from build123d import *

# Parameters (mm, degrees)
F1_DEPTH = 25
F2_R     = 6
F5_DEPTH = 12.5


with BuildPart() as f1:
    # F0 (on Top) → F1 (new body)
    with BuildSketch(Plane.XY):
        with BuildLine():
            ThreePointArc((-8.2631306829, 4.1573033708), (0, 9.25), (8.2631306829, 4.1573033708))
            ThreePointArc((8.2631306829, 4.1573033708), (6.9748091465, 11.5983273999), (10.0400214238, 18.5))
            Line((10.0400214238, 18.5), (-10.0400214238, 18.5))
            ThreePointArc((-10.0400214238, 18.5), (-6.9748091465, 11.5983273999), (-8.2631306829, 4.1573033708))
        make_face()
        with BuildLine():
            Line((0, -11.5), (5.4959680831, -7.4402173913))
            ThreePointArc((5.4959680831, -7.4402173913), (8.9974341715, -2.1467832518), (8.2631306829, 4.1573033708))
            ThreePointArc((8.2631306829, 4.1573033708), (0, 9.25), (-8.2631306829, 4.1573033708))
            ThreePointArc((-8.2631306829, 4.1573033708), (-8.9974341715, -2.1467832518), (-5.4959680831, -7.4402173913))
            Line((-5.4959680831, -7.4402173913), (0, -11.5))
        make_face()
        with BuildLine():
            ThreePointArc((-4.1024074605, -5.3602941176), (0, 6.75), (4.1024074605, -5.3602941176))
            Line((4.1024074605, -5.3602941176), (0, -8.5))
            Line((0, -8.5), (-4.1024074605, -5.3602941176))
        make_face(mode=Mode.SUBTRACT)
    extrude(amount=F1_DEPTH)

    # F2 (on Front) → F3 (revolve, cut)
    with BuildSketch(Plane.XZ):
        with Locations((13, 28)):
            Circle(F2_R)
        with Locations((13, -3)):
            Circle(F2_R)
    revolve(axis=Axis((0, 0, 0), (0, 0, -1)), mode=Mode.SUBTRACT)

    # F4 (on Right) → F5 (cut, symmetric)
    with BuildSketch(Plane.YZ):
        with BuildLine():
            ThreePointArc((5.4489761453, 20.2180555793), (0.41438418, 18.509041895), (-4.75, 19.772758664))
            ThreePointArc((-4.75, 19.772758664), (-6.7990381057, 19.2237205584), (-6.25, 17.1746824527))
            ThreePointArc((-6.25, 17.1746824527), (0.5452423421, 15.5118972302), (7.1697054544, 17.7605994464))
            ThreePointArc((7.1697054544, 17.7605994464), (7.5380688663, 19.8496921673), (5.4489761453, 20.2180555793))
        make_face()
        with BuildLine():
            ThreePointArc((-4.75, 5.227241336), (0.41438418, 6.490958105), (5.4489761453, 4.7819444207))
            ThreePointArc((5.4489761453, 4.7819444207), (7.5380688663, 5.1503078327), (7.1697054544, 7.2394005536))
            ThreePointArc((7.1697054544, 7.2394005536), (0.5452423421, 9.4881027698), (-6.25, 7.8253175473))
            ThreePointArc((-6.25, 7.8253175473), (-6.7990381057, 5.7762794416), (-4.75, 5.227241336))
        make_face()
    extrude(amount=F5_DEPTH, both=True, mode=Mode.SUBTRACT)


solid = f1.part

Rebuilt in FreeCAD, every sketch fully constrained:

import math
import FreeCAD as App
import Part
import Sketcher

doc = App.newDocument("Part")
params = doc.addObject("Spreadsheet::Sheet", "Params")
for row, (alias, value) in enumerate([
    ("sketch1_radius", "13 mm"),
    ("sketch1_radius2", "9.25 mm"),
    ("sketch1_radius3", "6.75 mm"),
    ("pad1_length", "25 mm"),
    ("sketch2_diameter", "12 mm"),
    ("groove_angle", "360 deg"),
    ("sketch3_radius", "9.5 mm"),
    ("sketch3_radius2", "1.5 mm"),
    ("pocket1_length", "25 mm"),
], start=1):
    params.set(f"A{row}", alias)
    params.set(f"B{row}", "=" + value)
    params.setAlias(f"B{row}", alias)

body = doc.addObject("PartDesign::Body", "Body")

# Sketch on XY plane
sketch1 = doc.addObject("Sketcher::SketchObject", "Sketch")
body.addObject(sketch1)
sketch1.AttachmentSupport = (doc.XY_Plane, [""])
sketch1.MapMode = "FlatFace"
sketch1.addGeometry([
    Part.ArcOfCircle(Part.Circle(App.Vector(19.876179, 10, 0), App.Vector(0, 0, 1), 13), math.radians(139.167783), math.radians(206.707645)),  # 0
    Part.LineSegment(App.Vector(10.040021, 18.5, 0), App.Vector(-10.040021, 18.5, 0)),  # 1
    Part.ArcOfCircle(Part.Circle(App.Vector(-19.876179, 10, 0), App.Vector(0, 0, 1), 13), math.radians(-26.707645), math.radians(40.832217)),  # 2
    Part.ArcOfCircle(Part.Circle(App.Vector(0, 0, 0), App.Vector(0, 0, 1), 9.25), math.radians(153.292355), math.radians(233.547318)),  # 3
    Part.LineSegment(App.Vector(-5.495968, -7.440217, 0), App.Vector(0, -11.5, 0)),  # 4
    Part.LineSegment(App.Vector(0, -11.5, 0), App.Vector(5.495968, -7.440217, 0)),  # 5
    Part.ArcOfCircle(Part.Circle(App.Vector(0, 0, 0), App.Vector(0, 0, 1), 9.25), math.radians(-53.547318), math.radians(26.707645)),  # 6
    Part.LineSegment(App.Vector(0, -8.5, 0), App.Vector(-4.102407, -5.360294, 0)),  # 7
    Part.ArcOfCircle(Part.Circle(App.Vector(0, 0, 0), App.Vector(0, 0, 1), 6.75), math.radians(-52.571994), math.radians(232.571994)),  # 8
    Part.LineSegment(App.Vector(4.102407, -5.360294, 0), App.Vector(0, -8.5, 0)),  # 9
], False)
sketch1.addConstraint([
    Sketcher.Constraint("Coincident", 0, 1, 1, 1),
    Sketcher.Constraint("Coincident", 1, 2, 2, 2),
    Sketcher.Constraint("Tangent", 2, 1, 3, 1),
    Sketcher.Constraint("Tangent", 3, 2, 4, 1),
    Sketcher.Constraint("Coincident", 4, 2, 5, 1),
    Sketcher.Constraint("Tangent", 5, 2, 6, 1),
    Sketcher.Constraint("Tangent", 6, 2, 0, 2),
    Sketcher.Constraint("Tangent", 7, 2, 8, 2),
    Sketcher.Constraint("Tangent", 8, 1, 9, 1),
    Sketcher.Constraint("Coincident", 9, 2, 7, 1),
    Sketcher.Constraint("Horizontal", 1),
    Sketcher.Constraint("Coincident", 3, 3, -1, 1),
    Sketcher.Constraint("Coincident", 6, 3, -1, 1),
    Sketcher.Constraint("Coincident", 8, 3, -1, 1),
    Sketcher.Constraint("Equal", 0, 2),
    Sketcher.Constraint("Equal", 3, 6),
    Sketcher.Constraint("PointOnObject", 4, 2, -2),
    Sketcher.Constraint("PointOnObject", 9, 2, -2),
    Sketcher.Constraint("Horizontal", 0, 3, 2, 3),
    Sketcher.Constraint("Radius", 0, 13.0),
    Sketcher.Constraint("Radius", 3, 9.25),
    Sketcher.Constraint("Radius", 8, 6.75),
    Sketcher.Constraint("DistanceY", -1, 1, 0, 3, 10.0),
    Sketcher.Constraint("DistanceY", 4, 2, 9, 2, 3.0),
    Sketcher.Constraint("DistanceY", -1, 1, 0, 1, 18.5),
    Sketcher.Constraint("DistanceY", 4, 2, -1, 1, 11.5),
])
sketch1.setExpression("Constraints[19]", "Params.sketch1_radius")
sketch1.setExpression("Constraints[20]", "Params.sketch1_radius2")
sketch1.setExpression("Constraints[21]", "Params.sketch1_radius3")
pad1 = doc.addObject("PartDesign::Pad", "Pad")
body.addObject(pad1)
pad1.Profile = sketch1
pad1.setExpression("Length", "Params.pad1_length")

# Sketch on XZ plane
sketch2 = doc.addObject("Sketcher::SketchObject", "Sketch001")
body.addObject(sketch2)
sketch2.AttachmentSupport = (doc.XZ_Plane, [""])
sketch2.MapMode = "FlatFace"
sketch2.addGeometry([
    Part.Circle(App.Vector(13, 28, 0), App.Vector(0, 0, 1), 6),
    Part.Circle(App.Vector(13, -3, 0), App.Vector(0, 0, 1), 6),
], False)
sketch2.addConstraint([
    Sketcher.Constraint("Equal", 0, 1),
    Sketcher.Constraint("Vertical", 0, 3, 1, 3),
    Sketcher.Constraint("Diameter", 0, 12.0),
    Sketcher.Constraint("DistanceX", -1, 1, 0, 3, 13.0),
    Sketcher.Constraint("DistanceY", -1, 1, 0, 3, 28.0),
    Sketcher.Constraint("DistanceY", 1, 3, -1, 1, 3.0),
])
sketch2.setExpression("Constraints[2]", "Params.sketch2_diameter")
groove = doc.addObject("PartDesign::Groove", "Groove")
body.addObject(groove)
groove.Profile = sketch2
groove.ReferenceAxis = (sketch2, ["V_Axis"])
groove.setExpression("Angle", "Params.groove_angle")

# Sketch on YZ plane
sketch3 = doc.addObject("Sketcher::SketchObject", "Sketch002")
body.addObject(sketch3)
sketch3.AttachmentSupport = (doc.YZ_Plane, [""])
sketch3.MapMode = "FlatFace"
sketch3.addGeometry([
    Part.ArcOfCircle(Part.Circle(App.Vector(0, 28, 0), App.Vector(0, 0, 1), 9.5), math.radians(-120), math.radians(-55)),  # 0
    Part.ArcOfCircle(Part.Circle(App.Vector(-5.5, 18.473721, 0), App.Vector(0, 0, 1), 1.5), math.radians(60), math.radians(240)),  # 1
    Part.ArcOfCircle(Part.Circle(App.Vector(0, 28, 0), App.Vector(0, 0, 1), 12.5), math.radians(-120), math.radians(-55)),  # 2
    Part.ArcOfCircle(Part.Circle(App.Vector(6.309341, 18.989328, 0), App.Vector(0, 0, 1), 1.5), math.radians(-55), math.radians(125)),  # 3
    Part.ArcOfCircle(Part.Circle(App.Vector(0, -3, 0), App.Vector(0, 0, 1), 9.5), math.radians(55), math.radians(120)),  # 4
    Part.ArcOfCircle(Part.Circle(App.Vector(6.309341, 6.010672, 0), App.Vector(0, 0, 1), 1.5), math.radians(-125), math.radians(55)),  # 5
    Part.ArcOfCircle(Part.Circle(App.Vector(0, -3, 0), App.Vector(0, 0, 1), 12.5), math.radians(55), math.radians(120)),  # 6
    Part.ArcOfCircle(Part.Circle(App.Vector(-5.5, 6.526279, 0), App.Vector(0, 0, 1), 1.5), math.radians(120), math.radians(300)),  # 7
], False)
sketch3.addConstraint([
    Sketcher.Constraint("Tangent", 0, 1, 1, 1),
    Sketcher.Constraint("Tangent", 1, 2, 2, 1),
    Sketcher.Constraint("Tangent", 2, 2, 3, 1),
    Sketcher.Constraint("Tangent", 3, 2, 0, 2),
    Sketcher.Constraint("Tangent", 4, 1, 5, 1),
    Sketcher.Constraint("Tangent", 5, 2, 6, 1),
    Sketcher.Constraint("Tangent", 6, 2, 7, 1),
    Sketcher.Constraint("Tangent", 7, 2, 4, 2),
    Sketcher.Constraint("Coincident", 2, 3, 0, 3),
    Sketcher.Constraint("Coincident", 6, 3, 4, 3),
    Sketcher.Constraint("Equal", 0, 4),
    Sketcher.Constraint("Equal", 3, 5),
    Sketcher.Constraint("PointOnObject", 0, 3, -2),
    Sketcher.Constraint("PointOnObject", 4, 3, -2),
    Sketcher.Constraint("Vertical", 3, 3, 5, 3),
    Sketcher.Constraint("Vertical", 1, 3, 7, 3),
    Sketcher.Constraint("Radius", 0, 9.5),
    Sketcher.Constraint("Radius", 1, 1.5),
    Sketcher.Constraint("DistanceY", -1, 1, 0, 3, 28.0),
    Sketcher.Constraint("DistanceY", 4, 3, -1, 1, 3.0),
    Sketcher.Constraint("DistanceX", 1, 3, -1, 1, 5.5),
    Sketcher.Constraint("DistanceY", -1, 1, 2, 2, 17.760599),
])
sketch3.setExpression("Constraints[16]", "Params.sketch3_radius")
sketch3.setExpression("Constraints[17]", "Params.sketch3_radius2")
pocket1 = doc.addObject("PartDesign::Pocket", "Pocket")
body.addObject(pocket1)
pocket1.Profile = sketch3
pocket1.setExpression("Length", "Params.pocket1_length")
pocket1.Midplane = True

doc.recompute()
